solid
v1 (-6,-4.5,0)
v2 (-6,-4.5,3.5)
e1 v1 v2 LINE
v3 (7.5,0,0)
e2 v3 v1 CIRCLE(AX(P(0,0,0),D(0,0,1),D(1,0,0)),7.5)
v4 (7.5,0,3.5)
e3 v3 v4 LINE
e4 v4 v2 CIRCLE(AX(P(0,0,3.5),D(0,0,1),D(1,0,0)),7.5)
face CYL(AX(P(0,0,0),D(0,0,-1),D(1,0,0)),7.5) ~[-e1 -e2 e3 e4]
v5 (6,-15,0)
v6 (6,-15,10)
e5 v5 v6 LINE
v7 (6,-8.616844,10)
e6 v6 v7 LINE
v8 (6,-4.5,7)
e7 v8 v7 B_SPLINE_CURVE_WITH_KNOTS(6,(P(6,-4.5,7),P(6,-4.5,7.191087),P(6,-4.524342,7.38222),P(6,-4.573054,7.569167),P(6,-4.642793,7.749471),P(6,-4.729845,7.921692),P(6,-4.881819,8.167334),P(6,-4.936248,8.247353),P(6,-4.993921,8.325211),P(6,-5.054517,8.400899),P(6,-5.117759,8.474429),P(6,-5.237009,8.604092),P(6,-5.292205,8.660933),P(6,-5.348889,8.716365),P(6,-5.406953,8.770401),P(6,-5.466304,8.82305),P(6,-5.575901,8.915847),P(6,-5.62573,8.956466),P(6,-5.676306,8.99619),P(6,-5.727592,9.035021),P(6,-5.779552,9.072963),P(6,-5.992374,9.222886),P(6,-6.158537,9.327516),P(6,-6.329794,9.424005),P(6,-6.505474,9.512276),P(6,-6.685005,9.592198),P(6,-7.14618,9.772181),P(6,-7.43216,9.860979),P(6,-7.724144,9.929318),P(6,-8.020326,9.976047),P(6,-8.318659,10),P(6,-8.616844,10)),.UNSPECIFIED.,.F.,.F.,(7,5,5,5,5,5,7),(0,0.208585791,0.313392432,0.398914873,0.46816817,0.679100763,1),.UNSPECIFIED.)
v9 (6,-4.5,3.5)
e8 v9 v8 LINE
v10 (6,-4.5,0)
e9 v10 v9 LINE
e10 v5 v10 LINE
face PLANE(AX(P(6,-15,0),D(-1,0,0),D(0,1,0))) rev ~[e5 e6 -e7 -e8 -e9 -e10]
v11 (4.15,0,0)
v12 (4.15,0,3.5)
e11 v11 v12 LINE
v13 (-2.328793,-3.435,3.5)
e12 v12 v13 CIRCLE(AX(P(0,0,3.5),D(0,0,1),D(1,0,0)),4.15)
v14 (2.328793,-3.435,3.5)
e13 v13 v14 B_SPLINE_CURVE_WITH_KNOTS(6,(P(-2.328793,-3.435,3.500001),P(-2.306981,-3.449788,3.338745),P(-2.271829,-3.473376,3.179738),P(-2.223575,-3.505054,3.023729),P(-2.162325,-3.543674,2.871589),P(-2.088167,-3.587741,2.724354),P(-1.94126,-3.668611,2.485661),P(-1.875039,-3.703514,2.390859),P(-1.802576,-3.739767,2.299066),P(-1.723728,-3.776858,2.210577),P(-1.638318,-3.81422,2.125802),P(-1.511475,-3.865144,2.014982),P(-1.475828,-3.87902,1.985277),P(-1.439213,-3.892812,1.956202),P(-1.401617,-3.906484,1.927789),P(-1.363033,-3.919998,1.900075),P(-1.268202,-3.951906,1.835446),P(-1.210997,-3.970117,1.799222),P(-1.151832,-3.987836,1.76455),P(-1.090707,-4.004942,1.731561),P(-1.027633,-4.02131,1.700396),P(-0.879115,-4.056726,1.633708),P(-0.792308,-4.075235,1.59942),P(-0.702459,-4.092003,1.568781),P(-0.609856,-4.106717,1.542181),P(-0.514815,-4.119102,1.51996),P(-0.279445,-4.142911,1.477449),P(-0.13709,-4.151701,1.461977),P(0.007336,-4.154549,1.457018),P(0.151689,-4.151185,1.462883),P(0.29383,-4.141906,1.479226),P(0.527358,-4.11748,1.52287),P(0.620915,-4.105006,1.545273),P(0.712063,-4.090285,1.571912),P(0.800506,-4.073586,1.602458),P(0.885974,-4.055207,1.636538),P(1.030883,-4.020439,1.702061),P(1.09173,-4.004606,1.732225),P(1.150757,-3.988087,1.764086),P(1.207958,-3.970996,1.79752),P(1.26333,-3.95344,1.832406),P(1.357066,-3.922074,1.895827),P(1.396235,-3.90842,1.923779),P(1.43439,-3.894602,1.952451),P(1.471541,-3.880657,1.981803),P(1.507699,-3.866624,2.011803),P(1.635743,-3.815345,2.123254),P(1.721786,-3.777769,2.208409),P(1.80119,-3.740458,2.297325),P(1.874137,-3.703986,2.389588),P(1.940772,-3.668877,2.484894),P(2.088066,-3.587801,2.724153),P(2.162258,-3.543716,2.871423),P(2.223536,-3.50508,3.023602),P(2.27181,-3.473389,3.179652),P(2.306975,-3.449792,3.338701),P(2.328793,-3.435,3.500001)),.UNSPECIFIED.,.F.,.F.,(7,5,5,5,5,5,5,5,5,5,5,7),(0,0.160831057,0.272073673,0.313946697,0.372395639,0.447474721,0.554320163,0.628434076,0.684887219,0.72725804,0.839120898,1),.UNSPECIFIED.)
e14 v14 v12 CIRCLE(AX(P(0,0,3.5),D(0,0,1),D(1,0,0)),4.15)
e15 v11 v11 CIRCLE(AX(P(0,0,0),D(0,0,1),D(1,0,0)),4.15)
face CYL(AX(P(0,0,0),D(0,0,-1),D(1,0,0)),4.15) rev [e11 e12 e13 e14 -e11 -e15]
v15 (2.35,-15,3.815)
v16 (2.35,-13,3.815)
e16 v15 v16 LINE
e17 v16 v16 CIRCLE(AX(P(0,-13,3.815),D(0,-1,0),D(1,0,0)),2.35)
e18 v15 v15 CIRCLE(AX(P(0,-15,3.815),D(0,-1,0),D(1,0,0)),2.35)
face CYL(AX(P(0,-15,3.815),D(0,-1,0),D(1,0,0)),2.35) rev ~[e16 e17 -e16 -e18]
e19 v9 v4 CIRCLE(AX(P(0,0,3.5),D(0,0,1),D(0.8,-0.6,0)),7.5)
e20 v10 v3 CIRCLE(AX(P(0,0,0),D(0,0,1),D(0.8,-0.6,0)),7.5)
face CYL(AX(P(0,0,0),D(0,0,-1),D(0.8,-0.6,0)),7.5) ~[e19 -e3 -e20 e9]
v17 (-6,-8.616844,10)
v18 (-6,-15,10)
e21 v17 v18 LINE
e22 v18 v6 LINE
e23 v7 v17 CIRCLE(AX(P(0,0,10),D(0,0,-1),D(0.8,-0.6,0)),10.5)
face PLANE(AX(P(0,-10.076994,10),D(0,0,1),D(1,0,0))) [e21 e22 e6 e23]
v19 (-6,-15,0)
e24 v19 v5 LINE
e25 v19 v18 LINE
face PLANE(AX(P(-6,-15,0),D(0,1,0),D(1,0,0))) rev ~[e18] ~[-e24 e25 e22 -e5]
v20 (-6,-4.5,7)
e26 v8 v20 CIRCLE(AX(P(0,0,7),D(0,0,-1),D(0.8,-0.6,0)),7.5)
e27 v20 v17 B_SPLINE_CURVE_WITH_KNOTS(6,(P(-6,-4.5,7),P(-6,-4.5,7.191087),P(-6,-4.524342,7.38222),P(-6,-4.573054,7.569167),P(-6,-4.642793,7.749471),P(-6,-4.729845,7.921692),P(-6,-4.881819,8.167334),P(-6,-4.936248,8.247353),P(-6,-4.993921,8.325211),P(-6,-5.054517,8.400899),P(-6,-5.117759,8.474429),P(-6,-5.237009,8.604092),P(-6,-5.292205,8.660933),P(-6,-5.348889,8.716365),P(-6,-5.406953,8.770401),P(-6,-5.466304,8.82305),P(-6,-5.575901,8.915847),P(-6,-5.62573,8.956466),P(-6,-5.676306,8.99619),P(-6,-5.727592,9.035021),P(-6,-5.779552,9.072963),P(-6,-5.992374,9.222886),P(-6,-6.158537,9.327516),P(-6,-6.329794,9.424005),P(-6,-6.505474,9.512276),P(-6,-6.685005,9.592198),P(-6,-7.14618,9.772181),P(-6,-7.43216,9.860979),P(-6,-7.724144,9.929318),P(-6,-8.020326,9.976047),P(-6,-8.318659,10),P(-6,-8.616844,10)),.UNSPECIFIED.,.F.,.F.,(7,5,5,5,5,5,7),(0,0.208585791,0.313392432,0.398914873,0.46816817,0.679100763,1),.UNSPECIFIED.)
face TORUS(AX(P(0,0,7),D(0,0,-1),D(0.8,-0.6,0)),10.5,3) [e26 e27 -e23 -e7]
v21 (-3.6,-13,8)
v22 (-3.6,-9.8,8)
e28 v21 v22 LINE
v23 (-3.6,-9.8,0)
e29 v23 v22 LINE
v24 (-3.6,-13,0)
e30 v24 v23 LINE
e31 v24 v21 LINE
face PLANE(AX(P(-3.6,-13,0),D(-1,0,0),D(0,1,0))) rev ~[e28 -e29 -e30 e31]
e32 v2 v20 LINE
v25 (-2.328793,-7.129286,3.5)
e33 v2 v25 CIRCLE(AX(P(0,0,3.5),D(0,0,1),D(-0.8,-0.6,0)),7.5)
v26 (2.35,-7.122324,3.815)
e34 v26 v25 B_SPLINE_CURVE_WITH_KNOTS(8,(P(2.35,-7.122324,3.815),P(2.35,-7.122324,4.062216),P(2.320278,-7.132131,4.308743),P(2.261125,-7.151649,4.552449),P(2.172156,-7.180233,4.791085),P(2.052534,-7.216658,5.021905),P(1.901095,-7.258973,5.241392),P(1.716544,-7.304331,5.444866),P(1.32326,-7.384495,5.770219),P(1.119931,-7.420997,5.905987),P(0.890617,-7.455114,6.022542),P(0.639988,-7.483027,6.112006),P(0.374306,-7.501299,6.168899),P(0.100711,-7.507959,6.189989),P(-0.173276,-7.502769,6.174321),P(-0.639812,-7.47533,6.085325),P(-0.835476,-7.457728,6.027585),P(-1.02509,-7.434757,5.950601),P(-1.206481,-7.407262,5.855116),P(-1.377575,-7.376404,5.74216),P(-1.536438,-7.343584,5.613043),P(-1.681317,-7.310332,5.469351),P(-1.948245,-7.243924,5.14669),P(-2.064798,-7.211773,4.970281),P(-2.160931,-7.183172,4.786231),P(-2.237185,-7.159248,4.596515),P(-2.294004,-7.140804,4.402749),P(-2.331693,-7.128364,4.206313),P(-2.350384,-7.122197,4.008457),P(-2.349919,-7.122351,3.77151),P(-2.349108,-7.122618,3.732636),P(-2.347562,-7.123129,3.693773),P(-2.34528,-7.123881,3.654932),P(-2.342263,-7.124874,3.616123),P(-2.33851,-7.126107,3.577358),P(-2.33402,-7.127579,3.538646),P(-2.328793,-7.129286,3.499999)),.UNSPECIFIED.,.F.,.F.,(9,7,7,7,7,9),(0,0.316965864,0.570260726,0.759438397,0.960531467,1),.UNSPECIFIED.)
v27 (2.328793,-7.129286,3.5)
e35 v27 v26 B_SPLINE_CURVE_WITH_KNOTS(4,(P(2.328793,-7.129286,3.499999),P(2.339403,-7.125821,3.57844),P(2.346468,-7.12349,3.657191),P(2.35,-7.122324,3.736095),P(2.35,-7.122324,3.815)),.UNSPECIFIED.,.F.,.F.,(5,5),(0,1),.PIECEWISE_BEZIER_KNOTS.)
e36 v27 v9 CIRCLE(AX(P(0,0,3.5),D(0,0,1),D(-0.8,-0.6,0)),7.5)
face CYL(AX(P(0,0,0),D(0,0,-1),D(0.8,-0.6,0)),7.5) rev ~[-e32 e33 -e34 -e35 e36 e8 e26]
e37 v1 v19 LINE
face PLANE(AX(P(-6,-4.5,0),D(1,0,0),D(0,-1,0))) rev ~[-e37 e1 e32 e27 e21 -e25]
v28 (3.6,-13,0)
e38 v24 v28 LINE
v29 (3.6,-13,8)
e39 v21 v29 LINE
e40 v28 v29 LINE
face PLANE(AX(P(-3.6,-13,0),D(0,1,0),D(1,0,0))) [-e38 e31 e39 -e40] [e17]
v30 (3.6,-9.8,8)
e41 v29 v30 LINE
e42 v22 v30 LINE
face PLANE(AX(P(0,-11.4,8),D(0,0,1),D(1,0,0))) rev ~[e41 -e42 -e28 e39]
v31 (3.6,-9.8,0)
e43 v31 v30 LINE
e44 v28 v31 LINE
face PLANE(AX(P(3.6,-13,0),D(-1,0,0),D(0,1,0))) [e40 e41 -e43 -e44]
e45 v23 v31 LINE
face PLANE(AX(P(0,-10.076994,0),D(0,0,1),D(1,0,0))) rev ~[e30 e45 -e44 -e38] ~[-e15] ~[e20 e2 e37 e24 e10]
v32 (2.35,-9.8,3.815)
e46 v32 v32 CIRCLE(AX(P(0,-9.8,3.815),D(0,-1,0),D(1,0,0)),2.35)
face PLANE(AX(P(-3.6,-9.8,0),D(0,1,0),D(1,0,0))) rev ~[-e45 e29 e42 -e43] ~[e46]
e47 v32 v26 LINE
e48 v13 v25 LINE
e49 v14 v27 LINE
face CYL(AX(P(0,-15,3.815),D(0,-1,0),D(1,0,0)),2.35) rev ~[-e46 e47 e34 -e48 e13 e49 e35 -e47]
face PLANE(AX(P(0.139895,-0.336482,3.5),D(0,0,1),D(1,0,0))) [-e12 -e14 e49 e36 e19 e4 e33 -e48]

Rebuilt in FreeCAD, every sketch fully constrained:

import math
import FreeCAD as App
import Part
import Sketcher
Q = App.Units.Quantity


def edges_at(feature, points):
    """Names of the edges that pass closest to the given points."""
    edges = feature.Shape.Edges
    near = lambda p: min(range(len(edges)), key=lambda i: edges[i].distToShape(Part.Vertex(*p))[0])
    return sorted({f"Edge{near(p) + 1}" for p in points})


def add_polygon(sketch, points):
    """Adds a closed chain of lines whose ends are joined by coincident constraints."""
    first, n = sketch.GeometryCount, len(points)
    for a, b in zip(points, points[1:] + points[:1]):
        sketch.addGeometry(Part.LineSegment(App.Vector(*a, 0), App.Vector(*b, 0)), False)
    for i in range(n):
        sketch.addConstraint(Sketcher.Constraint("Coincident", first + i, 2, first + (i + 1) % n, 1))

doc = App.newDocument("Part")
body = doc.addObject("PartDesign::Body", "Body")

sketch1 = body.newObject("Sketcher::SketchObject", "Sketch")
sketch1.AttachmentSupport = (doc.getObject("XY_Plane"), [""])
sketch1.MapMode = "FlatFace"
sketch1.addGeometry([
    Part.ArcOfCircle(Part.Circle(App.Vector(0, 0, 0), App.Vector(0, 0, 1), 7.5), math.radians(-37), math.radians(0)),
    Part.ArcOfCircle(Part.Circle(App.Vector(0, 0, 0), App.Vector(0, 0, 1), 7.5), math.radians(0), math.radians(217)),
    Part.ArcOfCircle(Part.Circle(App.Vector(0, 0, 0), App.Vector(0, 0, 1), 7.5), math.radians(-143), math.radians(-37)),
    Part.Circle(App.Vector(0, 0, 0), App.Vector(0, 0, 1), 4.2),
], False)
sketch1.addConstraint([
    Sketcher.Constraint("Tangent", 0, 2, 1, 1),
    Sketcher.Constraint("Tangent", 1, 2, 2, 1),
    Sketcher.Constraint("Tangent", 2, 2, 0, 1),
    Sketcher.Constraint("Coincident", 0, 3, -1, 1),
    Sketcher.Constraint("Coincident", 3, 3, -1, 1),
    Sketcher.Constraint("PointOnObject", 0, 2, -1),
    Sketcher.Constraint("Horizontal", 1, 2, 2, 2),
    Sketcher.Constraint("Diameter", 3, Q("8.3 mm")),
    Sketcher.Constraint("Radius", 0, Q("7.5 mm")),
    Sketcher.Constraint("DistanceX", 1, 2, -1, 1, Q("6 mm")),
])
pad1 = body.newObject("PartDesign::Pad", "Pad")
pad1.Profile = sketch1
pad1.Length = 3.5

sketch2 = body.newObject("Sketcher::SketchObject", "Sketch001")
sketch2.AttachmentSupport = (doc.getObject("XY_Plane"), [""])
sketch2.MapMode = "FlatFace"
sketch2.addGeometry([
    Part.ArcOfCircle(Part.Circle(App.Vector(0, 0, 0), App.Vector(0, 0, 1), 8), math.radians(-143), math.radians(-37)),
    Part.LineSegment(App.Vector(-6, -4, 0), App.Vector(-6, -15, 0)),
    Part.LineSegment(App.Vector(-6, -15, 0), App.Vector(6, -15, 0)),
    Part.LineSegment(App.Vector(6, -15, 0), App.Vector(6, -4, 0)),
], False)
sketch2.addConstraint([
    Sketcher.Constraint("Coincident", 0, 1, 1, 1),
    Sketcher.Constraint("Coincident", 1, 2, 2, 1),
    Sketcher.Constraint("Coincident", 2, 2, 3, 1),
    Sketcher.Constraint("Coincident", 3, 2, 0, 2),
    Sketcher.Constraint("Vertical", 1),
    Sketcher.Constraint("Horizontal", 2),
    Sketcher.Constraint("Vertical", 3),
    Sketcher.Constraint("Coincident", 0, 3, -1, 1),
    Sketcher.Constraint("Horizontal", 0, 1, 3, 2),
    Sketcher.Constraint("Radius", 0, Q("7.5 mm")),
    Sketcher.Constraint("DistanceX", 2, 1, 2, 2, Q("12 mm")),
    Sketcher.Constraint("DistanceY", 1, 2, 1, 1, Q("10.5 mm")),
])
pad2 = body.newObject("PartDesign::Pad", "Pad001")
pad2.Profile = sketch2
pad2.Length = 10

sketch3 = body.newObject("Sketcher::SketchObject", "Sketch002")
sketch3.AttachmentSupport = (doc.getObject("XZ_Plane"), [""])
sketch3.MapMode = "FlatFace"
sketch3.AttachmentOffset = App.Placement(App.Vector(0, 0, 15), App.Rotation())
sketch3.addGeometry(Part.Circle(App.Vector(0, 3.8, 0), App.Vector(0, 0, 1), 2.4), False)
sketch3.addConstraint([
    Sketcher.Constraint("PointOnObject", 0, 3, -2),
    Sketcher.Constraint("Diameter", 0, Q("4.7 mm")),
    Sketcher.Constraint("DistanceY", -1, 1, 0, 3, Q("3.815 mm")),
])
pocket1 = body.newObject("PartDesign::Pocket", "Pocket")
pocket1.Profile = sketch3
pocket1.Length = 12.579474

sketch4 = body.newObject("Sketcher::SketchObject", "Sketch003")
sketch4.AttachmentSupport = (doc.getObject("XY_Plane"), [""])
sketch4.MapMode = "FlatFace"
add_polygon(sketch4, [(-3.6, -9.8), (-3.6, -13), (3.6, -13), (3.6, -9.8)])
sketch4.addConstraint([
    Sketcher.Constraint("Vertical", 0),
    Sketcher.Constraint("Horizontal", 1),
    Sketcher.Constraint("Vertical", 2),
    Sketcher.Constraint("Horizontal", 3),
    Sketcher.Constraint("DistanceX", 1, 1, 1, 2, Q("7.2 mm")),
    Sketcher.Constraint("DistanceY", 0, 2, 0, 1, Q("3.2 mm")),
    Sketcher.Constraint("DistanceY", 0, 2, -1, 1, Q("13 mm")),
    Sketcher.Constraint("DistanceX", 0, 2, -1, 1, Q("3.6 mm")),
])
pocket2 = body.newObject("PartDesign::Pocket", "Pocket001")
pocket2.Profile = sketch4
pocket2.Length = 8
pocket2.Reversed = True
doc.recompute()

fillet = body.newObject("PartDesign::Fillet", "Fillet")
fillet.Base = (pocket2, edges_at(pocket2, [(0, -7.5, 10)]))
fillet.Radius = 3

doc.recompute()
